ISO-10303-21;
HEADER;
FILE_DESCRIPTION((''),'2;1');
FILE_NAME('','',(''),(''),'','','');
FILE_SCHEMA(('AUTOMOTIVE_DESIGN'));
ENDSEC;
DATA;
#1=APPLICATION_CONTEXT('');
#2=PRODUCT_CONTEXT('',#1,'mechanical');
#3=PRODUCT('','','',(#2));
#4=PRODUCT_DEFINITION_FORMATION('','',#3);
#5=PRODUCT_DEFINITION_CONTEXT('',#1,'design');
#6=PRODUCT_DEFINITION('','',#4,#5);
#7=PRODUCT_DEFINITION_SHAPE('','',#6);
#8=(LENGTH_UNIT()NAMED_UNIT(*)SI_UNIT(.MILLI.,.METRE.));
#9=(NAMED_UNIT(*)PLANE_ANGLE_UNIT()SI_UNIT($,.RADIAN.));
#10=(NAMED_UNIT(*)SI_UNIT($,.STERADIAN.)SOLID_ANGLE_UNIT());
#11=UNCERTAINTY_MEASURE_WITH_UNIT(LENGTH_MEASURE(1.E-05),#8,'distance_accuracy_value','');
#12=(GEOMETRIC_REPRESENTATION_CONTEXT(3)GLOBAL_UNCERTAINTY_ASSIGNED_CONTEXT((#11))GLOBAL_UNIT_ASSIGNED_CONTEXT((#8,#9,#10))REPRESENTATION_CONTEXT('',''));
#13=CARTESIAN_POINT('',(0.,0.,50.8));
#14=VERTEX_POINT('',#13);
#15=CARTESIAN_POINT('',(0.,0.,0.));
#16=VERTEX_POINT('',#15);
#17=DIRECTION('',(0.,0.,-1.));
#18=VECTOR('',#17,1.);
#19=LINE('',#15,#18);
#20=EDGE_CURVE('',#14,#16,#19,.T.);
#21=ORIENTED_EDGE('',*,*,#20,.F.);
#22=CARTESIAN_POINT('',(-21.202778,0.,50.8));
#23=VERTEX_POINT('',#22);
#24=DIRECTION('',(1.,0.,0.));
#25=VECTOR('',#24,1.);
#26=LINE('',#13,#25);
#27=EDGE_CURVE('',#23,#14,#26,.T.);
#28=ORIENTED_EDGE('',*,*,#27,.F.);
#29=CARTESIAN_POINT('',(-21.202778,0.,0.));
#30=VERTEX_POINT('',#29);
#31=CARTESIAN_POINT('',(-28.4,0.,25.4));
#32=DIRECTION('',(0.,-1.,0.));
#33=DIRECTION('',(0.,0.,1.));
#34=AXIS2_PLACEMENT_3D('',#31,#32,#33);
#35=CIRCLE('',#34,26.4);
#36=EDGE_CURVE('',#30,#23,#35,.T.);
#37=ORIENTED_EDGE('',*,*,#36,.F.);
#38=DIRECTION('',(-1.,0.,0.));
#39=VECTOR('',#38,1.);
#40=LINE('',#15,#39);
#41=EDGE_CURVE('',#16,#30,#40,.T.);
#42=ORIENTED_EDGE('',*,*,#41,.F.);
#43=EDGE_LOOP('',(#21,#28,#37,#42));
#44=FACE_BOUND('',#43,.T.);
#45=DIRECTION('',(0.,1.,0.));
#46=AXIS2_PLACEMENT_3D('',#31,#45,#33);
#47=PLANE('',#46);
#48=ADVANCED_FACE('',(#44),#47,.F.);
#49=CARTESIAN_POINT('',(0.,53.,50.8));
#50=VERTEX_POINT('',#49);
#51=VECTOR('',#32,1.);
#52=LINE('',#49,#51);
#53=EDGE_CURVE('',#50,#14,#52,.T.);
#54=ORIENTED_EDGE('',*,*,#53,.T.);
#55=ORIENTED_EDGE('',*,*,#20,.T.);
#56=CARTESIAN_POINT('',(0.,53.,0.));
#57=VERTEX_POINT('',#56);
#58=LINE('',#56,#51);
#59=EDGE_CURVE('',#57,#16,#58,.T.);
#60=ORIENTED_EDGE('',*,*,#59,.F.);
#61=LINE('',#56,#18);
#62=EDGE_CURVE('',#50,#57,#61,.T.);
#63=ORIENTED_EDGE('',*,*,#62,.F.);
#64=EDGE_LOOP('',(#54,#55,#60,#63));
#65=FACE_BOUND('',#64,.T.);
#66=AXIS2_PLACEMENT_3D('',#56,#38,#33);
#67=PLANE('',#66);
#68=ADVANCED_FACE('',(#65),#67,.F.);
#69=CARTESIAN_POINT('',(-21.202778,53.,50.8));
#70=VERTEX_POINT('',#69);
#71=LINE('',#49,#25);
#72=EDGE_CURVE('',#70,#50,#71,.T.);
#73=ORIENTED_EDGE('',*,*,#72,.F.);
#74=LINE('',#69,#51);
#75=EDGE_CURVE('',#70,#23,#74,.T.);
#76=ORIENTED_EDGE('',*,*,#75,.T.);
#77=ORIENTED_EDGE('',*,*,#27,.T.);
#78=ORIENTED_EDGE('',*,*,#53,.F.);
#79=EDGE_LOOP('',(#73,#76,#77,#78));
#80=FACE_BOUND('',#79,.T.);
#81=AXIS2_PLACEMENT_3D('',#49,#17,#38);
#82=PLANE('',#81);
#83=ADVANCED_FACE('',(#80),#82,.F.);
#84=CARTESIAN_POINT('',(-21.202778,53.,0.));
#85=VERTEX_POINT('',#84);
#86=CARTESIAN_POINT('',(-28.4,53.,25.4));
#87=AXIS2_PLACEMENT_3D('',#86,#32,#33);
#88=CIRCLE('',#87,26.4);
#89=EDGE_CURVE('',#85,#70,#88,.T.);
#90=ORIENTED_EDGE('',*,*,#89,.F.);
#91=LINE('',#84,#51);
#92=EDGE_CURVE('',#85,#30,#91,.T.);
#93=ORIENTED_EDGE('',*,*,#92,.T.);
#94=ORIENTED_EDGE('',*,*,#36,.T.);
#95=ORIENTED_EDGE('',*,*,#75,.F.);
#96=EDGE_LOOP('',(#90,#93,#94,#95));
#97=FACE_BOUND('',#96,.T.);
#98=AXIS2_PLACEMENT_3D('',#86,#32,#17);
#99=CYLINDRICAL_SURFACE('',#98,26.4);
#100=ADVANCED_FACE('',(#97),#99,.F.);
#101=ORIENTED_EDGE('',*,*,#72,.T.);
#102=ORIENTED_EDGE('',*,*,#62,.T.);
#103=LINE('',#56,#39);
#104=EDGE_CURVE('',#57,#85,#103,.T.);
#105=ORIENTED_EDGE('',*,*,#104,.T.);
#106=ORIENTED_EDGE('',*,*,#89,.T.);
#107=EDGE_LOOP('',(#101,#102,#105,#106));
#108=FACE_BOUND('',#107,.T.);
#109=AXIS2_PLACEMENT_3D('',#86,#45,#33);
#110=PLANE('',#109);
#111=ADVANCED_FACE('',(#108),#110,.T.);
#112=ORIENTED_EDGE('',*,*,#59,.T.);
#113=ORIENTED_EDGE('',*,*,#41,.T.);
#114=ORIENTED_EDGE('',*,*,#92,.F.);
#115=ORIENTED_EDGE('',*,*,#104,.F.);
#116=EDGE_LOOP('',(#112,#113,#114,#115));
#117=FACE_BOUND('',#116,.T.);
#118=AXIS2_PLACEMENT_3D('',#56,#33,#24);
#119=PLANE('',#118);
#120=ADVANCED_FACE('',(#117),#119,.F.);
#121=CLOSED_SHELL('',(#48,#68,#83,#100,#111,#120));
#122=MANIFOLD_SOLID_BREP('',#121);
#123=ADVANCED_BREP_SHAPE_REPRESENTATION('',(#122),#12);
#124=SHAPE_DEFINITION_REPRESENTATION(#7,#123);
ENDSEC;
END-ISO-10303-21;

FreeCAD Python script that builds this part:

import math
import FreeCAD as App
import Part
import Sketcher
from FreeCAD import Vector
Q = App.Units.Quantity

doc = App.newDocument("Part")
body = doc.addObject("PartDesign::Body", "Body")

sketch1 = doc.addObject("Sketcher::SketchObject", "Sketch")
body.addObject(sketch1)
sketch1.AttachmentSupport = (doc.XZ_Plane, [""])
sketch1.MapMode = "FlatFace"
sketch1.addGeometry([
    Part.LineSegment(Vector(0, 51, 0), Vector(0, 0, 0)),
    Part.LineSegment(Vector(0, 0, 0), Vector(-21, 0, 0)),
    Part.ArcOfCircle(Part.Circle(Vector(-28, 25, 0), Vector(0, 0, 1), 26), math.radians(-74), math.radians(74)),
    Part.LineSegment(Vector(-21, 51, 0), Vector(0, 51, 0)),
], False)
sketch1.addConstraint([
    Sketcher.Constraint("Coincident", 0, 2, 1, 1),
    Sketcher.Constraint("Coincident", 1, 2, 2, 1),
    Sketcher.Constraint("Coincident", 2, 2, 3, 1),
    Sketcher.Constraint("Coincident", 3, 2, 0, 1),
    Sketcher.Constraint("Vertical", 0),
    Sketcher.Constraint("Horizontal", 1),
    Sketcher.Constraint("Horizontal", 3),
    Sketcher.Constraint("Coincident", 0, 2, -1, 1),
    Sketcher.Constraint("Vertical", 1, 2, 2, 2),
    Sketcher.Constraint("Radius", 2, Q("26.4 mm")),
    Sketcher.Constraint("DistanceY", 0, 2, 0, 1, Q("50.8 mm")),
    Sketcher.Constraint("DistanceX", 2, 3, -1, 1, Q("28.4 mm")),
])
pad1 = doc.addObject("PartDesign::Pad", "Pad")
body.addObject(pad1)
pad1.Profile = sketch1
pad1.Length = 53
pad1.Reversed = True

doc.recompute()
